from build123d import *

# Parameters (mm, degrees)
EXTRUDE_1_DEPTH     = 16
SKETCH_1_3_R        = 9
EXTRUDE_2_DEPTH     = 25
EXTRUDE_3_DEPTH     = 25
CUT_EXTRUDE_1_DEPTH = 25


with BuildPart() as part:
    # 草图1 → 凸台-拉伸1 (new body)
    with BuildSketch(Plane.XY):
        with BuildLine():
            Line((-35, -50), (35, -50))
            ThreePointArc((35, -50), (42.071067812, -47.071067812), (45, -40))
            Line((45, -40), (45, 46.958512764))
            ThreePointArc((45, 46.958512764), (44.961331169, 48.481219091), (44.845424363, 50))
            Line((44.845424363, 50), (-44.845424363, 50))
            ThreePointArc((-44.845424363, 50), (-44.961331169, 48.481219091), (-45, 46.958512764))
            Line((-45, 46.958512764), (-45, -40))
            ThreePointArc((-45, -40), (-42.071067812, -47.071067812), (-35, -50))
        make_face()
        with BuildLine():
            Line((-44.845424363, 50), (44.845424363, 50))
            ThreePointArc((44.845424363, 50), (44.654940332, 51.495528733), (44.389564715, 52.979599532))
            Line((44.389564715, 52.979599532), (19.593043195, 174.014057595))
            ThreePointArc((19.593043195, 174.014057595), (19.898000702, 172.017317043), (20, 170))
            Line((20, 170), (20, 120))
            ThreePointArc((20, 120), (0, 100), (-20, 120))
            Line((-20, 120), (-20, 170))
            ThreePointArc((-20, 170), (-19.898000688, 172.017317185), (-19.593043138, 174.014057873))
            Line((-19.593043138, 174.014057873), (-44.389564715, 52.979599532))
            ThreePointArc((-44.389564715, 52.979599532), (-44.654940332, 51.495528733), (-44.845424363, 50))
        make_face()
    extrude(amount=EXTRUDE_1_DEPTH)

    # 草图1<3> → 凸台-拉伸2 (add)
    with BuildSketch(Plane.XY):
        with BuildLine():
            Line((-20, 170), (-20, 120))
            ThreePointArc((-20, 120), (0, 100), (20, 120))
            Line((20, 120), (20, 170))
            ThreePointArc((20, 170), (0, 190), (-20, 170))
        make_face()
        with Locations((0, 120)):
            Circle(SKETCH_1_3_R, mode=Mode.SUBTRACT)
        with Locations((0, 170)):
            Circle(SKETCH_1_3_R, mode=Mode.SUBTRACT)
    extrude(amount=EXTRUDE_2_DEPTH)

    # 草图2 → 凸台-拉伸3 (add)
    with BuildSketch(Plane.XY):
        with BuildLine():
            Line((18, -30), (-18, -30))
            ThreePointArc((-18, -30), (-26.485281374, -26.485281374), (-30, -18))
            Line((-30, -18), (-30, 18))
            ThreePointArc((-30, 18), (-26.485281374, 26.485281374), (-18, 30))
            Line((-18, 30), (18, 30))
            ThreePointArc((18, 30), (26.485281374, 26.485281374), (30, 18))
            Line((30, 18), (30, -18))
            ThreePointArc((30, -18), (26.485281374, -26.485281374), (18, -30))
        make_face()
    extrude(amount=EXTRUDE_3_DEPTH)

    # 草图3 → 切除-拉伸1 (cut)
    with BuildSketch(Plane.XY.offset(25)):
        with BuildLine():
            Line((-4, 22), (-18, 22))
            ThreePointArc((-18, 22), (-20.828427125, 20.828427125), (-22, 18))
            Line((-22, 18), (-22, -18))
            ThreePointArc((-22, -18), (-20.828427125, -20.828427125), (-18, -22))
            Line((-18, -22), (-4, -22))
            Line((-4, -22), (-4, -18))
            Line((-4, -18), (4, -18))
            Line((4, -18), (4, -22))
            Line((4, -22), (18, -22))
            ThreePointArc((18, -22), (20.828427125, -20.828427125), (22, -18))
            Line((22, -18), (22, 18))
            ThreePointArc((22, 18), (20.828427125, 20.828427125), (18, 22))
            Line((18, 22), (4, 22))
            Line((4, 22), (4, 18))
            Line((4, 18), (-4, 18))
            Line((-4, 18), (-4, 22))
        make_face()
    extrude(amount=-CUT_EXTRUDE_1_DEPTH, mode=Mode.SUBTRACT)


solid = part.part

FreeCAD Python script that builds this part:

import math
import FreeCAD as App
import Part
import Sketcher

V = App.Vector
Q = App.Units.Quantity

doc = App.newDocument("Part")
body = doc.addObject("PartDesign::Body", "Body")

sketch1 = body.newObject("Sketcher::SketchObject", "Sketch")
sketch1.AttachmentSupport = (doc.getObject("XY_Plane"), [""])
sketch1.MapMode = "FlatFace"
sketch1.addGeometry(Part.LineSegment(V(-35, -50, 0), V(35, -50, 0)), False)
sketch1.addGeometry(Part.ArcOfCircle(Part.Circle(V(35, -40, 0), V(0, 0, 1), 10), math.radians(-90), math.radians(0)), False)
sketch1.addGeometry(Part.LineSegment(V(45, -40, 0), V(45, 47, 0)), False)
sketch1.addGeometry(Part.ArcOfCircle(Part.Circle(V(15, 47, 0), V(0, 0, 1), 30), math.radians(0), math.radians(5.82)), False)
sketch1.addGeometry(Part.ArcOfCircle(Part.Circle(V(15, 47, 0), V(0, 0, 1), 30), math.radians(5.82), math.radians(11.58)), False)
sketch1.addGeometry(Part.LineSegment(V(44.4, 53, 0), V(19.6, 174, 0)), False)
sketch1.addGeometry(Part.ArcOfCircle(Part.Circle(V(0, 170, 0), V(0, 0, 1), 20), math.radians(0), math.radians(11.58)), False)
sketch1.addGeometry(Part.LineSegment(V(20, 170, 0), V(20, 120, 0)), False)
sketch1.addGeometry(Part.ArcOfCircle(Part.Circle(V(0, 120, 0), V(0, 0, 1), 20), math.radians(180), math.radians(360)), False)
sketch1.addGeometry(Part.LineSegment(V(-20, 120, 0), V(-20, 170, 0)), False)
sketch1.addGeometry(Part.ArcOfCircle(Part.Circle(V(0, 170, 0), V(0, 0, 1), 20), math.radians(168.42), math.radians(180)), False)
sketch1.addGeometry(Part.LineSegment(V(-19.6, 174, 0), V(-44.4, 53, 0)), False)
sketch1.addGeometry(Part.ArcOfCircle(Part.Circle(V(-15, 47, 0), V(0, 0, 1), 30), math.radians(168.42), math.radians(174.18)), False)
sketch1.addGeometry(Part.ArcOfCircle(Part.Circle(V(-15, 47, 0), V(0, 0, 1), 30), math.radians(174.18), math.radians(180)), False)
sketch1.addGeometry(Part.LineSegment(V(-45, 47, 0), V(-45, -40, 0)), False)
sketch1.addGeometry(Part.ArcOfCircle(Part.Circle(V(-35, -40, 0), V(0, 0, 1), 10), math.radians(180), math.radians(270)), False)
sketch1.addConstraint(Sketcher.Constraint("Tangent", 0, 2, 1, 1))
sketch1.addConstraint(Sketcher.Constraint("Tangent", 1, 2, 2, 1))
sketch1.addConstraint(Sketcher.Constraint("Tangent", 2, 2, 3, 1))
sketch1.addConstraint(Sketcher.Constraint("Tangent", 3, 2, 4, 1))
sketch1.addConstraint(Sketcher.Constraint("Tangent", 4, 2, 5, 1))
sketch1.addConstraint(Sketcher.Constraint("Tangent", 5, 2, 6, 2))
sketch1.addConstraint(Sketcher.Constraint("Tangent", 6, 1, 7, 1))
sketch1.addConstraint(Sketcher.Constraint("Tangent", 7, 2, 8, 2))
sketch1.addConstraint(Sketcher.Constraint("Tangent", 8, 1, 9, 1))
sketch1.addConstraint(Sketcher.Constraint("Tangent", 9, 2, 10, 2))
sketch1.addConstraint(Sketcher.Constraint("Tangent", 10, 1, 11, 1))
sketch1.addConstraint(Sketcher.Constraint("Tangent", 11, 2, 12, 1))
sketch1.addConstraint(Sketcher.Constraint("Tangent", 12, 2, 13, 1))
sketch1.addConstraint(Sketcher.Constraint("Tangent", 13, 2, 14, 1))
sketch1.addConstraint(Sketcher.Constraint("Tangent", 14, 2, 15, 1))
sketch1.addConstraint(Sketcher.Constraint("Tangent", 15, 2, 0, 1))
sketch1.addConstraint(Sketcher.Constraint("Horizontal", 0))
sketch1.addConstraint(Sketcher.Constraint("Vertical", 2))
sketch1.addConstraint(Sketcher.Constraint("Vertical", 7))
sketch1.addConstraint(Sketcher.Constraint("Vertical", 9))
sketch1.addConstraint(Sketcher.Constraint("Vertical", 14))
sketch1.addConstraint(Sketcher.Constraint("Coincident", 10, 3, 6, 3))
sketch1.addConstraint(Sketcher.Constraint("Equal", 3, 4))
sketch1.addConstraint(Sketcher.Constraint("Equal", 6, 8))
sketch1.addConstraint(Sketcher.Constraint("Equal", 4, 12))
sketch1.addConstraint(Sketcher.Constraint("Equal", 12, 13))
sketch1.addConstraint(Sketcher.Constraint("Equal", 1, 15))
sketch1.addConstraint(Sketcher.Constraint("Symmetric", 3, 3, 12, 3, -2))
sketch1.addConstraint(Sketcher.Constraint("PointOnObject", 6, 3, -2))
sketch1.addConstraint(Sketcher.Constraint("Horizontal", 3, 2, 12, 2))
sketch1.addConstraint(Sketcher.Constraint("Radius", 1, Q("10 mm")))
sketch1.addConstraint(Sketcher.Constraint("Radius", 3, Q("30 mm")))
sketch1.addConstraint(Sketcher.Constraint("Radius", 6, Q("20 mm")))
sketch1.addConstraint(Sketcher.Constraint("DistanceX", 0, 1, 0, 2, Q("70 mm")))
sketch1.addConstraint(Sketcher.Constraint("DistanceY", 7, 2, 7, 1, Q("50 mm")))
sketch1.addConstraint(Sketcher.Constraint("DistanceY", 1, 3, -1, 1, Q("40 mm")))
sketch1.addConstraint(Sketcher.Constraint("DistanceY", -1, 1, 6, 3, Q("170 mm")))
sketch1.addConstraint(Sketcher.Constraint("DistanceY", -1, 1, 3, 2, Q("50 mm")))
sketch1.addConstraint(Sketcher.Constraint("Distance", 5, Q("123.548402 mm")))
pad1 = body.newObject("PartDesign::Pad", "Pad")
pad1.Profile = sketch1
pad1.Length = 16

sketch2 = body.newObject("Sketcher::SketchObject", "Sketch001")
sketch2.AttachmentSupport = (doc.getObject("XY_Plane"), [""])
sketch2.MapMode = "FlatFace"
sketch2.addGeometry(Part.LineSegment(V(-20, 170, 0), V(-20, 120, 0)), False)
sketch2.addGeometry(Part.ArcOfCircle(Part.Circle(V(0, 120, 0), V(0, 0, 1), 20), math.radians(180), math.radians(360)), False)
sketch2.addGeometry(Part.LineSegment(V(20, 120, 0), V(20, 170, 0)), False)
sketch2.addGeometry(Part.ArcOfCircle(Part.Circle(V(0, 170, 0), V(0, 0, 1), 20), math.radians(0), math.radians(180)), False)
sketch2.addGeometry(Part.Circle(V(0, 120, 0), V(0, 0, 1), 9), False)
sketch2.addGeometry(Part.Circle(V(0, 170, 0), V(0, 0, 1), 9), False)
sketch2.addConstraint(Sketcher.Constraint("Tangent", 0, 2, 1, 1))
sketch2.addConstraint(Sketcher.Constraint("Tangent", 1, 2, 2, 1))
sketch2.addConstraint(Sketcher.Constraint("Tangent", 2, 2, 3, 1))
sketch2.addConstraint(Sketcher.Constraint("Tangent", 3, 2, 0, 1))
sketch2.addConstraint(Sketcher.Constraint("Vertical", 0))
sketch2.addConstraint(Sketcher.Constraint("Vertical", 2))
sketch2.addConstraint(Sketcher.Constraint("Coincident", 4, 3, 1, 3))
sketch2.addConstraint(Sketcher.Constraint("Coincident", 5, 3, 3, 3))
sketch2.addConstraint(Sketcher.Constraint("Equal", 4, 5))
sketch2.addConstraint(Sketcher.Constraint("PointOnObject", 1, 3, -2))
sketch2.addConstraint(Sketcher.Constraint("Diameter", 4, Q("18 mm")))
sketch2.addConstraint(Sketcher.Constraint("Radius", 1, Q("20 mm")))
sketch2.addConstraint(Sketcher.Constraint("DistanceY", 0, 2, 0, 1, Q("50 mm")))
sketch2.addConstraint(Sketcher.Constraint("DistanceY", -1, 1, 1, 3, Q("120 mm")))
pad2 = body.newObject("PartDesign::Pad", "Pad001")
pad2.Profile = sketch2
pad2.Length = 25

sketch3 = body.newObject("Sketcher::SketchObject", "Sketch002")
sketch3.AttachmentSupport = (doc.getObject("XY_Plane"), [""])
sketch3.MapMode = "FlatFace"
sketch3.addGeometry(Part.LineSegment(V(-18, -30, 0), V(18, -30, 0)), False)
sketch3.addGeometry(Part.ArcOfCircle(Part.Circle(V(18, -18, 0), V(0, 0, 1), 12), math.radians(-90), math.radians(0)), False)
sketch3.addGeometry(Part.LineSegment(V(30, -18, 0), V(30, 18, 0)), False)
sketch3.addGeometry(Part.ArcOfCircle(Part.Circle(V(18, 18, 0), V(0, 0, 1), 12), math.radians(0), math.radians(90)), False)
sketch3.addGeometry(Part.LineSegment(V(18, 30, 0), V(-18, 30, 0)), False)
sketch3.addGeometry(Part.ArcOfCircle(Part.Circle(V(-18, 18, 0), V(0, 0, 1), 12), math.radians(90), math.radians(180)), False)
sketch3.addGeometry(Part.LineSegment(V(-30, 18, 0), V(-30, -18, 0)), False)
sketch3.addGeometry(Part.ArcOfCircle(Part.Circle(V(-18, -18, 0), V(0, 0, 1), 12), math.radians(-180), math.radians(-90)), False)
sketch3.addConstraint(Sketcher.Constraint("Tangent", 0, 2, 1, 1))
sketch3.addConstraint(Sketcher.Constraint("Tangent", 1, 2, 2, 1))
sketch3.addConstraint(Sketcher.Constraint("Tangent", 2, 2, 3, 1))
sketch3.addConstraint(Sketcher.Constraint("Tangent", 3, 2, 4, 1))
sketch3.addConstraint(Sketcher.Constraint("Tangent", 4, 2, 5, 1))
sketch3.addConstraint(Sketcher.Constraint("Tangent", 5, 2, 6, 1))
sketch3.addConstraint(Sketcher.Constraint("Tangent", 6, 2, 7, 1))
sketch3.addConstraint(Sketcher.Constraint("Tangent", 7, 2, 0, 1))
sketch3.addConstraint(Sketcher.Constraint("Horizontal", 0))
sketch3.addConstraint(Sketcher.Constraint("Vertical", 2))
sketch3.addConstraint(Sketcher.Constraint("Horizontal", 4))
sketch3.addConstraint(Sketcher.Constraint("Vertical", 6))
sketch3.addConstraint(Sketcher.Constraint("Equal", 1, 3))
sketch3.addConstraint(Sketcher.Constraint("Equal", 3, 5))
sketch3.addConstraint(Sketcher.Constraint("Equal", 5, 7))
sketch3.addConstraint(Sketcher.Constraint("Symmetric", 1, 3, 5, 3, -1, 1))
sketch3.addConstraint(Sketcher.Constraint("Equal", 4, 2))
sketch3.addConstraint(Sketcher.Constraint("Radius", 1, Q("12 mm")))
sketch3.addConstraint(Sketcher.Constraint("DistanceX", 0, 1, 0, 2, Q("36 mm")))
pad3 = body.newObject("PartDesign::Pad", "Pad002")
pad3.Profile = sketch3
pad3.Length = 25

sketch4 = body.newObject("Sketcher::SketchObject", "Sketch003")
sketch4.AttachmentSupport = (doc.getObject("XY_Plane"), [""])
sketch4.MapMode = "FlatFace"
sketch4.AttachmentOffset = App.Placement(V(0, 0, 25), App.Rotation())
sketch4.addGeometry(Part.LineSegment(V(-4, 22, 0), V(-18, 22, 0)), False)
sketch4.addGeometry(Part.ArcOfCircle(Part.Circle(V(-18, 18, 0), V(0, 0, 1), 4), math.radians(90), math.radians(180)), False)
sketch4.addGeometry(Part.LineSegment(V(-22, 18, 0), V(-22, -18, 0)), False)
sketch4.addGeometry(Part.ArcOfCircle(Part.Circle(V(-18, -18, 0), V(0, 0, 1), 4), math.radians(180), math.radians(270)), False)
sketch4.addGeometry(Part.LineSegment(V(-18, -22, 0), V(-4, -22, 0)), False)
sketch4.addGeometry(Part.LineSegment(V(-4, -22, 0), V(-4, -18, 0)), False)
sketch4.addGeometry(Part.LineSegment(V(-4, -18, 0), V(4, -18, 0)), False)
sketch4.addGeometry(Part.LineSegment(V(4, -18, 0), V(4, -22, 0)), False)
sketch4.addGeometry(Part.LineSegment(V(4, -22, 0), V(18, -22, 0)), False)
sketch4.addGeometry(Part.ArcOfCircle(Part.Circle(V(18, -18, 0), V(0, 0, 1), 4), math.radians(-90), math.radians(0)), False)
sketch4.addGeometry(Part.LineSegment(V(22, -18, 0), V(22, 18, 0)), False)
sketch4.addGeometry(Part.ArcOfCircle(Part.Circle(V(18, 18, 0), V(0, 0, 1), 4), math.radians(0), math.radians(90)), False)
sketch4.addGeometry(Part.LineSegment(V(18, 22, 0), V(4, 22, 0)), False)
sketch4.addGeometry(Part.LineSegment(V(4, 22, 0), V(4, 18, 0)), False)
sketch4.addGeometry(Part.LineSegment(V(4, 18, 0), V(-4, 18, 0)), False)
sketch4.addGeometry(Part.LineSegment(V(-4, 18, 0), V(-4, 22, 0)), False)
sketch4.addConstraint(Sketcher.Constraint("Tangent", 0, 2, 1, 1))
sketch4.addConstraint(Sketcher.Constraint("Tangent", 1, 2, 2, 1))
sketch4.addConstraint(Sketcher.Constraint("Tangent", 2, 2, 3, 1))
sketch4.addConstraint(Sketcher.Constraint("Tangent", 3, 2, 4, 1))
sketch4.addConstraint(Sketcher.Constraint("Coincident", 4, 2, 5, 1))
sketch4.addConstraint(Sketcher.Constraint("Coincident", 5, 2, 6, 1))
sketch4.addConstraint(Sketcher.Constraint("Coincident", 6, 2, 7, 1))
sketch4.addConstraint(Sketcher.Constraint("Coincident", 7, 2, 8, 1))
sketch4.addConstraint(Sketcher.Constraint("Tangent", 8, 2, 9, 1))
sketch4.addConstraint(Sketcher.Constraint("Tangent", 9, 2, 10, 1))
sketch4.addConstraint(Sketcher.Constraint("Tangent", 10, 2, 11, 1))
sketch4.addConstraint(Sketcher.Constraint("Tangent", 11, 2, 12, 1))
sketch4.addConstraint(Sketcher.Constraint("Coincident", 12, 2, 13, 1))
sketch4.addConstraint(Sketcher.Constraint("Coincident", 13, 2, 14, 1))
sketch4.addConstraint(Sketcher.Constraint("Coincident", 14, 2, 15, 1))
sketch4.addConstraint(Sketcher.Constraint("Coincident", 15, 2, 0, 1))
sketch4.addConstraint(Sketcher.Constraint("Horizontal", 0))
sketch4.addConstraint(Sketcher.Constraint("Vertical", 2))
sketch4.addConstraint(Sketcher.Constraint("Horizontal", 4))
sketch4.addConstraint(Sketcher.Constraint("Vertical", 5))
sketch4.addConstraint(Sketcher.Constraint("Horizontal", 6))
sketch4.addConstraint(Sketcher.Constraint("Vertical", 7))
sketch4.addConstraint(Sketcher.Constraint("Horizontal", 8))
sketch4.addConstraint(Sketcher.Constraint("Vertical", 10))
sketch4.addConstraint(Sketcher.Constraint("Horizontal", 12))
sketch4.addConstraint(Sketcher.Constraint("Vertical", 13))
sketch4.addConstraint(Sketcher.Constraint("Horizontal", 14))
sketch4.addConstraint(Sketcher.Constraint("Vertical", 15))
sketch4.addConstraint(Sketcher.Constraint("Equal", 1, 3))
sketch4.addConstraint(Sketcher.Constraint("Equal", 3, 9))
sketch4.addConstraint(Sketcher.Constraint("Equal", 9, 11))
sketch4.addConstraint(Sketcher.Constraint("Symmetric", 1, 3, 9, 3, -1, 1))
sketch4.addConstraint(Sketcher.Constraint("Symmetric", 4, 2, 12, 2, -1, 1))
sketch4.addConstraint(Sketcher.Constraint("Symmetric", 6, 2, 14, 2, -1, 1))
sketch4.addConstraint(Sketcher.Constraint("Symmetric", 4, 2, 7, 2, -2))
sketch4.addConstraint(Sketcher.Constraint("Horizontal", 2, 2, 5, 2))
sketch4.addConstraint(Sketcher.Constraint("Radius", 1, Q("4 mm")))
sketch4.addConstraint(Sketcher.Constraint("DistanceX", 0, 2, 0, 1, Q("14 mm")))
sketch4.addConstraint(Sketcher.Constraint("DistanceX", 6, 1, 6, 2, Q("8 mm")))
sketch4.addConstraint(Sketcher.Constraint("DistanceY", 2, 2, 2, 1, Q("36 mm")))
pocket1 = body.newObject("PartDesign::Pocket", "Pocket")
pocket1.Profile = sketch4
pocket1.Length = 25

doc.recompute()
